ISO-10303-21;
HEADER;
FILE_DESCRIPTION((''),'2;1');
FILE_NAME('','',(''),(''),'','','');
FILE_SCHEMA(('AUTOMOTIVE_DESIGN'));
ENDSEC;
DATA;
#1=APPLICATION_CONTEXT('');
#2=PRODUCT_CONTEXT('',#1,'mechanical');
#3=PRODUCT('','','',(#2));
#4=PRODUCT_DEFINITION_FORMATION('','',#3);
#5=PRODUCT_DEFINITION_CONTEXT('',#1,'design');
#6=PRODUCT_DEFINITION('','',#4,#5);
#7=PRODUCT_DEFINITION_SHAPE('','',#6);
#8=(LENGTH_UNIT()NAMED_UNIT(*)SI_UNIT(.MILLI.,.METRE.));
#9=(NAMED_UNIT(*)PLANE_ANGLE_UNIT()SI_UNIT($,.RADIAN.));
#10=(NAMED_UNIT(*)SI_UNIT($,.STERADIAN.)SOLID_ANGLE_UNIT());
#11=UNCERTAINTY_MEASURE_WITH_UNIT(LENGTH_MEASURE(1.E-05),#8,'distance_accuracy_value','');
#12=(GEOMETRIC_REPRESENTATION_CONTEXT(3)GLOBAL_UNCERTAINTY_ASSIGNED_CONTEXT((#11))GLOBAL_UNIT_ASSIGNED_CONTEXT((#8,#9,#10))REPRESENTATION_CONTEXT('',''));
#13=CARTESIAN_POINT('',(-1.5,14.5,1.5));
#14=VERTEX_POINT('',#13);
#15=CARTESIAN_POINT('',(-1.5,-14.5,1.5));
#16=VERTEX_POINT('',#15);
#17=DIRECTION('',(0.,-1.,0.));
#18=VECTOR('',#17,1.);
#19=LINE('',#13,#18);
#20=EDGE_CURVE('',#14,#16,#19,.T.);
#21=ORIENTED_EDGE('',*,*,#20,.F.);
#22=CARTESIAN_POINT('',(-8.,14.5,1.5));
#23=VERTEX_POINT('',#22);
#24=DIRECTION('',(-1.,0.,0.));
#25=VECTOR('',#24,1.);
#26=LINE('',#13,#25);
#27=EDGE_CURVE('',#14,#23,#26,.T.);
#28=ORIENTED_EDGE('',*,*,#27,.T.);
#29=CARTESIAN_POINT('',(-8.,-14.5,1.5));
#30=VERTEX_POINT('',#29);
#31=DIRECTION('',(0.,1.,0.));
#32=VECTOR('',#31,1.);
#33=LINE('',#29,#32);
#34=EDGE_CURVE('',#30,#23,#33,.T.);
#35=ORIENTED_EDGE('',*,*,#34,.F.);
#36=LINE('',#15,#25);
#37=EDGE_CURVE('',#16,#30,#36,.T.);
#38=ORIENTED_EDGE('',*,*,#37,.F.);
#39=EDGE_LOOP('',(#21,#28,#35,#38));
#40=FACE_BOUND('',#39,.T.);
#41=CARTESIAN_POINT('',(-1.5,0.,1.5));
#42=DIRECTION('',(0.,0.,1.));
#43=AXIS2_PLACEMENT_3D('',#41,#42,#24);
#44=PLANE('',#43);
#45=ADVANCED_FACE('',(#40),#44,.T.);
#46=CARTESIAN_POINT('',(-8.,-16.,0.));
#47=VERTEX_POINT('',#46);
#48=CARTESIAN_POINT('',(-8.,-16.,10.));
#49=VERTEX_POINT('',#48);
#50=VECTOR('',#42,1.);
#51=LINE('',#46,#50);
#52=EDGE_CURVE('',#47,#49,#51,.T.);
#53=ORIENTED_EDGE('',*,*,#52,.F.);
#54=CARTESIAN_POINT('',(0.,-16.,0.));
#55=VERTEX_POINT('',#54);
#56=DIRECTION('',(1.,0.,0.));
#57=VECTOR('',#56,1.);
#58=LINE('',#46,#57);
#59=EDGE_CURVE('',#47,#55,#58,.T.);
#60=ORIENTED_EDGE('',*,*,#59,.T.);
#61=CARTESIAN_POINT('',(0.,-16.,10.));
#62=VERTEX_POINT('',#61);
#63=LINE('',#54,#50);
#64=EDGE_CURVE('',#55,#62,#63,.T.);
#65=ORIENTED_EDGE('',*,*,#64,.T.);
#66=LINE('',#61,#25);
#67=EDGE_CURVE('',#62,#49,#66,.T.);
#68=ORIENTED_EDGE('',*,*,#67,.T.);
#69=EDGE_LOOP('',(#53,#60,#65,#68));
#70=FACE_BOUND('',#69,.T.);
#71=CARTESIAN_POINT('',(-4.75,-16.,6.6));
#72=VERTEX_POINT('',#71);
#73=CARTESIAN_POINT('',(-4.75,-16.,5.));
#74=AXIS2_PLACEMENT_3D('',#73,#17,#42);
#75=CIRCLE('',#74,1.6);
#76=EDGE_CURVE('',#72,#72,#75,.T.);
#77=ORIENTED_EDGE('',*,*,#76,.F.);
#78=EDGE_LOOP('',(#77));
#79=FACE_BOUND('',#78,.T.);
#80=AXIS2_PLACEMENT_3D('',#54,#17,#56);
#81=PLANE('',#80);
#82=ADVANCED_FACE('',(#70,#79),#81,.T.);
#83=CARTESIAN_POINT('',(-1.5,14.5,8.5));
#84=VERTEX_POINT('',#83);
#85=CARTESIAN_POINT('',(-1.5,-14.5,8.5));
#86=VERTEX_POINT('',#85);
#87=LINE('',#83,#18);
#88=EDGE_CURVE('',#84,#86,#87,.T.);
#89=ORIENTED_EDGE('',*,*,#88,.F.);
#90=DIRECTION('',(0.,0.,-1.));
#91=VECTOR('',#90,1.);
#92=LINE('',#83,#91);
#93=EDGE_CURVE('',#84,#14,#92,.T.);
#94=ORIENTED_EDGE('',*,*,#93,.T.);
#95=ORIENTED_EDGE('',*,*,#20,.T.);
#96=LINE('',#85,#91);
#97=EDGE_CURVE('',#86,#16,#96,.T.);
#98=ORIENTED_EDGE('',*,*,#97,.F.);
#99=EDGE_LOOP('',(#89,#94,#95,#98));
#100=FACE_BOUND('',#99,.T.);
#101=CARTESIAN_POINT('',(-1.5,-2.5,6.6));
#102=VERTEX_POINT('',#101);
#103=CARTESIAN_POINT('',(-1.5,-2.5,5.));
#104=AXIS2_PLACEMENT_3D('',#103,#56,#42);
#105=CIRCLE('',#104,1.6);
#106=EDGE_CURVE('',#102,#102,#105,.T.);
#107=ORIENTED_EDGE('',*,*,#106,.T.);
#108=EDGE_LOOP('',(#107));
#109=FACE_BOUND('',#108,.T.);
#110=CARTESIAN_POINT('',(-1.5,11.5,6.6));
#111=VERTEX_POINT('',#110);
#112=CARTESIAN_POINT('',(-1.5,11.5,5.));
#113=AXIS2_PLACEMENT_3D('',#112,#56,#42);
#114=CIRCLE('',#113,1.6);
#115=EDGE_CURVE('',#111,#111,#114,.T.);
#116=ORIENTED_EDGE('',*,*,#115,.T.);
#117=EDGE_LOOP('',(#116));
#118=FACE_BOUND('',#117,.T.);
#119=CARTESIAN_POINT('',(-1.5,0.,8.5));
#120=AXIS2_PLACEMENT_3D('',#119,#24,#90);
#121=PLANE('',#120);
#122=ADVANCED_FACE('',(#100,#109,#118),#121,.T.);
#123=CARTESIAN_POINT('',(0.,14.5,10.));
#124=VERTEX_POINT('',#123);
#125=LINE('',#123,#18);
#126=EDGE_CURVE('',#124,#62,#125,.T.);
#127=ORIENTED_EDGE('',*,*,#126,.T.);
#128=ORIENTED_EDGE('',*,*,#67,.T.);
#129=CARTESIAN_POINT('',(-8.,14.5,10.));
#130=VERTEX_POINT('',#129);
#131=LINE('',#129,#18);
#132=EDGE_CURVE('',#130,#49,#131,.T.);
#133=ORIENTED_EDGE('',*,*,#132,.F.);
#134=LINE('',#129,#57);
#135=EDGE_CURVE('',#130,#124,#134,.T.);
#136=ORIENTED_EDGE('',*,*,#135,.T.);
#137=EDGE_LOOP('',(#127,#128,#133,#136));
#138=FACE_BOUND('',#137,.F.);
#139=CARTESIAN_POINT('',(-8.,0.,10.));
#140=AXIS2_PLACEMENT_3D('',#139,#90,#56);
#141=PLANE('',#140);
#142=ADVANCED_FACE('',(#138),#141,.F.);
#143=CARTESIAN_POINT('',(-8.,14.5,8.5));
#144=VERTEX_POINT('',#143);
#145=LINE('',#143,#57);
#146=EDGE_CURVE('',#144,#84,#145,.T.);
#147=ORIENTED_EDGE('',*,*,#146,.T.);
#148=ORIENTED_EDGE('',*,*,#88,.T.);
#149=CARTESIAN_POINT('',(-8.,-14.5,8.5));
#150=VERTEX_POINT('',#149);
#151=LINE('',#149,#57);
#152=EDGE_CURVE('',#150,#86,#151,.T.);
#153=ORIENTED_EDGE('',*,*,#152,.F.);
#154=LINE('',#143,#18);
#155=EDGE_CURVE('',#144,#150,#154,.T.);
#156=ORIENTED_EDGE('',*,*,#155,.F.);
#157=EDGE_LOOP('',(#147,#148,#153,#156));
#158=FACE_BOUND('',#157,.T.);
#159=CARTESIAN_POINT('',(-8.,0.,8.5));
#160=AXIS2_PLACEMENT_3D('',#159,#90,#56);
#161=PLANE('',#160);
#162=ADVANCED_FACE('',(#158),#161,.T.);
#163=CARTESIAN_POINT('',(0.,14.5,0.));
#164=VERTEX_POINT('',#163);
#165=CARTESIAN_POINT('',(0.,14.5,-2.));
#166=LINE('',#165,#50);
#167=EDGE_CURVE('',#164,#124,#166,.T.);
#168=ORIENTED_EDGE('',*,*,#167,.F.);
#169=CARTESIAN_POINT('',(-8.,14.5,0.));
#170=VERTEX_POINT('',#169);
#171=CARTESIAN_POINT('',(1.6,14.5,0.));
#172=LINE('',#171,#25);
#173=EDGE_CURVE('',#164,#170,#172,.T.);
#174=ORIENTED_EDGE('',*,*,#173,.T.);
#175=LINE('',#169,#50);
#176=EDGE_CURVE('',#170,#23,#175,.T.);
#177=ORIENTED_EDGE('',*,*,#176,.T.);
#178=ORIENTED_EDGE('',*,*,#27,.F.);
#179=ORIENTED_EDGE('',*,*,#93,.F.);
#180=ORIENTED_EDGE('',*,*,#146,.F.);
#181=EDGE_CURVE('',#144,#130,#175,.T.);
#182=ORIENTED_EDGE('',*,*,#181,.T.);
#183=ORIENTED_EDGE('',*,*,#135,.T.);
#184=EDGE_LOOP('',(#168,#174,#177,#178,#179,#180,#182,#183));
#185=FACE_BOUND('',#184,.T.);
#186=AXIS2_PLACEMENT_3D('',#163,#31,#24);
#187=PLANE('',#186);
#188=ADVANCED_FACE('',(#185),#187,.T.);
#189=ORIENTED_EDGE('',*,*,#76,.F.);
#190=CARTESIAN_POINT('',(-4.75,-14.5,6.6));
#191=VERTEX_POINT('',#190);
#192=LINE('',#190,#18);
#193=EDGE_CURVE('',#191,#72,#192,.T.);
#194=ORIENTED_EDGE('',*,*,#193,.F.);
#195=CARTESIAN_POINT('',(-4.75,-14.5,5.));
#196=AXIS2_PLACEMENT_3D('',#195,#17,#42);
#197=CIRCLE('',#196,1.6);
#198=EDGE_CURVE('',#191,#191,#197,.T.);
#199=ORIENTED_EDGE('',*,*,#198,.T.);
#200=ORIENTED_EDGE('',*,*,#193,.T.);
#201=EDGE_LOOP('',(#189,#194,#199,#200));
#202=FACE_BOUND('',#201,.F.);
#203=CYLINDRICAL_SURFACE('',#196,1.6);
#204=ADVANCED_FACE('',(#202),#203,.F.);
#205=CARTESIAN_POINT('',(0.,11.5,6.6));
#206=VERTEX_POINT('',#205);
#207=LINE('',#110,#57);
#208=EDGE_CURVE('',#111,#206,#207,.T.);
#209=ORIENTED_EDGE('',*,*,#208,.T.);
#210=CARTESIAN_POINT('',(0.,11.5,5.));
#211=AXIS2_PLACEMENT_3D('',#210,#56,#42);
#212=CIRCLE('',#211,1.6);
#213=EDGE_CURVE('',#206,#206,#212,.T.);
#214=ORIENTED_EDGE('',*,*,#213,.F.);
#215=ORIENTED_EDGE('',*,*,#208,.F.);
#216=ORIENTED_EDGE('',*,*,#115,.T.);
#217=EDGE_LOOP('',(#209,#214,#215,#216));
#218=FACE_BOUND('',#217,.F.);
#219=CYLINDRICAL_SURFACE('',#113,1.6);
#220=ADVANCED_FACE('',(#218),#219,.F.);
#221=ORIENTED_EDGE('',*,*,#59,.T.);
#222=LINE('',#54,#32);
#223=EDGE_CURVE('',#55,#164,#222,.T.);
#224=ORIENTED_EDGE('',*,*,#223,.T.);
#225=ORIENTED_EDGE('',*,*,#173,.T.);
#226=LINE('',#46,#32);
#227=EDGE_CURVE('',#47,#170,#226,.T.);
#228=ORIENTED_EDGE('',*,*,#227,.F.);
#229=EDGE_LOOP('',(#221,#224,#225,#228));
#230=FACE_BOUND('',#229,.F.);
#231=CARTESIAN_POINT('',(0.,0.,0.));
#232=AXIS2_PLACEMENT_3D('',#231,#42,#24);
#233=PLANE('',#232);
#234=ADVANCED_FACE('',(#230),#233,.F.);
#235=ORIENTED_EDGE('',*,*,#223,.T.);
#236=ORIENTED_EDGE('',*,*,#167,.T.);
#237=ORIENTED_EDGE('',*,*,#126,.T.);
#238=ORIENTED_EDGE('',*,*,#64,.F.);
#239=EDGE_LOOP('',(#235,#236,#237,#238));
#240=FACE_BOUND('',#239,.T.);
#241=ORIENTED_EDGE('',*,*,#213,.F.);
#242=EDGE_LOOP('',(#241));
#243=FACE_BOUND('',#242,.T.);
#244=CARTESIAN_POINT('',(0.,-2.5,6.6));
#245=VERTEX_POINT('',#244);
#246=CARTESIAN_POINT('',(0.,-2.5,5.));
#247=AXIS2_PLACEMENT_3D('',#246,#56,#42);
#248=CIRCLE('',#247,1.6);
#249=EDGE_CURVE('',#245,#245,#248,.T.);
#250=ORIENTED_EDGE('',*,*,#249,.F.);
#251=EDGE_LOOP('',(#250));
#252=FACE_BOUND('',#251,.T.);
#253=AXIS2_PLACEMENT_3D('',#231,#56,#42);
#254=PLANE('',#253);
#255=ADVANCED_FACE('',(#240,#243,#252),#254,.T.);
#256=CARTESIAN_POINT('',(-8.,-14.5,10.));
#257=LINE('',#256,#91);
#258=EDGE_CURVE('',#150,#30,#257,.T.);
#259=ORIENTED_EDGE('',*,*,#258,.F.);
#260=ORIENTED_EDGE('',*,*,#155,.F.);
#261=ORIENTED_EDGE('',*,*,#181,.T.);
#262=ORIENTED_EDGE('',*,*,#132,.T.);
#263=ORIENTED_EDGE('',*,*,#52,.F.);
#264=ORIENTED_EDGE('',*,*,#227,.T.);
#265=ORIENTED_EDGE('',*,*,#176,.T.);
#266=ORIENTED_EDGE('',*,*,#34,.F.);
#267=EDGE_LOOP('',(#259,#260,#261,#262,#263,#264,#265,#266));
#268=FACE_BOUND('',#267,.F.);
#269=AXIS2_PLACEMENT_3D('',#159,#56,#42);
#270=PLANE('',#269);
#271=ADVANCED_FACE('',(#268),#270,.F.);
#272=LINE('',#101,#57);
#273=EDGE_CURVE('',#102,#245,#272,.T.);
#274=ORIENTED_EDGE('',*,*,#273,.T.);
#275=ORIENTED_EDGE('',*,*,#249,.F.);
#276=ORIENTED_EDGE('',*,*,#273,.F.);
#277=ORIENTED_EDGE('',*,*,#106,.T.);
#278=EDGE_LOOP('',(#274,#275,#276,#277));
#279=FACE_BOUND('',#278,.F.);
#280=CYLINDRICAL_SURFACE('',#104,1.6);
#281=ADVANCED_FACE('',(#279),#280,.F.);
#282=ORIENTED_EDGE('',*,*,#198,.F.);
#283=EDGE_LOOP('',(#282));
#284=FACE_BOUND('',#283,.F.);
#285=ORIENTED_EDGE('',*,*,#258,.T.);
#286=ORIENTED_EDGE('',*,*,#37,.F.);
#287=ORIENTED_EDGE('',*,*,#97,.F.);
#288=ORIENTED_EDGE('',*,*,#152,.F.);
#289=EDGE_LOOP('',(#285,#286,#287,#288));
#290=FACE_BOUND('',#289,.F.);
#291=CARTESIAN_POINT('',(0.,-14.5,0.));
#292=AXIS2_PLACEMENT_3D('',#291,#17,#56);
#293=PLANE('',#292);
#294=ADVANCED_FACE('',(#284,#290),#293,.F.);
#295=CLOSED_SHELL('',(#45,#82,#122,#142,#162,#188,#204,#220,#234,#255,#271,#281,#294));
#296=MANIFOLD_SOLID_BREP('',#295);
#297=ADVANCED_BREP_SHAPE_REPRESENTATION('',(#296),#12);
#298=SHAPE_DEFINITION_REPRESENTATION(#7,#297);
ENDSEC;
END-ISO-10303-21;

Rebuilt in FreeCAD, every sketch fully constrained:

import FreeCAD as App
import Part
import Sketcher
from FreeCAD import Vector
Q = App.Units.Quantity

doc = App.newDocument("Part")
body = doc.addObject("PartDesign::Body", "Body")

sketch1 = body.newObject("Sketcher::SketchObject", "Sketch")
sketch1.AttachmentSupport = (doc.getObject("XZ_Plane"), [""])
sketch1.MapMode = "FlatFace"
sketch1.addGeometry([
    Part.LineSegment(Vector(0, 10, 0), Vector(0, 0, 0)),
    Part.LineSegment(Vector(0, 0, 0), Vector(-8, 0, 0)),
    Part.LineSegment(Vector(-8, 0, 0), Vector(-8, 1.5, 0)),
    Part.LineSegment(Vector(-8, 1.5, 0), Vector(-1.5, 1.5, 0)),
    Part.LineSegment(Vector(-1.5, 1.5, 0), Vector(-1.5, 8.5, 0)),
    Part.LineSegment(Vector(-1.5, 8.5, 0), Vector(-8, 8.5, 0)),
    Part.LineSegment(Vector(-8, 8.5, 0), Vector(-8, 10, 0)),
    Part.LineSegment(Vector(-8, 10, 0), Vector(0, 10, 0)),
], False)
sketch1.addConstraint([
    Sketcher.Constraint("Coincident", 0, 2, 1, 1),
    Sketcher.Constraint("Coincident", 1, 2, 2, 1),
    Sketcher.Constraint("Coincident", 2, 2, 3, 1),
    Sketcher.Constraint("Coincident", 3, 2, 4, 1),
    Sketcher.Constraint("Coincident", 4, 2, 5, 1),
    Sketcher.Constraint("Coincident", 5, 2, 6, 1),
    Sketcher.Constraint("Coincident", 6, 2, 7, 1),
    Sketcher.Constraint("Coincident", 7, 2, 0, 1),
    Sketcher.Constraint("Vertical", 0),
    Sketcher.Constraint("Horizontal", 1),
    Sketcher.Constraint("Vertical", 2),
    Sketcher.Constraint("Horizontal", 3),
    Sketcher.Constraint("Vertical", 4),
    Sketcher.Constraint("Horizontal", 5),
    Sketcher.Constraint("Vertical", 6),
    Sketcher.Constraint("Horizontal", 7),
    Sketcher.Constraint("Coincident", 0, 2, -1, 1),
    Sketcher.Constraint("Vertical", 2, 2, 5, 2),
    Sketcher.Constraint("Equal", 2, 6),
    Sketcher.Constraint("DistanceX", 1, 2, 1, 1, Q("8 mm")),
    Sketcher.Constraint("DistanceY", 0, 2, 0, 1, Q("10 mm")),
    Sketcher.Constraint("DistanceY", 4, 1, 4, 2, Q("7 mm")),
    Sketcher.Constraint("DistanceX", 3, 1, 3, 2, Q("6.5 mm")),
])
pad1 = body.newObject("PartDesign::Pad", "Pad")
pad1.Profile = sketch1
pad1.Length = 29
pad1.Midplane = True

sketch2 = body.newObject("Sketcher::SketchObject", "Sketch001")
sketch2.AttachmentSupport = (doc.getObject("XZ_Plane"), [""])
sketch2.MapMode = "FlatFace"
sketch2.AttachmentOffset = App.Placement(Vector(0, 0, 14.5), App.Rotation())
sketch2.addGeometry([
    Part.LineSegment(Vector(-8, 10, 0), Vector(-8, 0, 0)),
    Part.LineSegment(Vector(-8, 0, 0), Vector(0, 0, 0)),
    Part.LineSegment(Vector(0, 0, 0), Vector(0, 10, 0)),
    Part.LineSegment(Vector(0, 10, 0), Vector(-8, 10, 0)),
], False)
sketch2.addConstraint([
    Sketcher.Constraint("Coincident", 0, 2, 1, 1),
    Sketcher.Constraint("Coincident", 1, 2, 2, 1),
    Sketcher.Constraint("Coincident", 2, 2, 3, 1),
    Sketcher.Constraint("Coincident", 3, 2, 0, 1),
    Sketcher.Constraint("Vertical", 0),
    Sketcher.Constraint("Horizontal", 1),
    Sketcher.Constraint("Vertical", 2),
    Sketcher.Constraint("Horizontal", 3),
    Sketcher.Constraint("Coincident", 1, 2, -1, 1),
    Sketcher.Constraint("DistanceX", 1, 1, 1, 2, Q("8 mm")),
    Sketcher.Constraint("DistanceY", 0, 2, 0, 1, Q("10 mm")),
])
pad2 = body.newObject("PartDesign::Pad", "Pad001")
pad2.Profile = sketch2
pad2.Length = 1.5

sketch3 = body.newObject("Sketcher::SketchObject", "Sketch002")
sketch3.AttachmentSupport = (doc.getObject("XZ_Plane"), [""])
sketch3.MapMode = "FlatFace"
sketch3.AttachmentOffset = App.Placement(Vector(0, 0, 14.5), App.Rotation())
sketch3.addGeometry(Part.Circle(Vector(-4.8, 5, 0), Vector(0, 0, 1), 1.6), False)
sketch3.addConstraint([
    Sketcher.Constraint("Diameter", 0, Q("3.2 mm")),
    Sketcher.Constraint("DistanceY", -1, 1, 0, 3, Q("5 mm")),
    Sketcher.Constraint("DistanceX", 0, 3, -1, 1, Q("4.75 mm")),
])
doc.recompute()
hole = body.newObject("PartDesign::Hole", "Hole")
hole.Profile = sketch3
hole.ThreadType = "None"
hole.Diameter = 3.2
hole.DepthType = "ThroughAll"
hole.Reversed = True

sketch4 = body.newObject("Sketcher::SketchObject", "Sketch003")
sketch4.AttachmentSupport = (doc.getObject("YZ_Plane"), [""])
sketch4.MapMode = "FlatFace"
sketch4.AttachmentOffset = App.Placement(Vector(0, 0, -1.5), App.Rotation())
sketch4.addGeometry([
    Part.Circle(Vector(11.5, 5, 0), Vector(0, 0, 1), 1.6),
    Part.Circle(Vector(-2.5, 5, 0), Vector(0, 0, 1), 1.6),
], False)
sketch4.addConstraint([
    Sketcher.Constraint("Equal", 0, 1),
    Sketcher.Constraint("Horizontal", 0, 3, 1, 3),
    Sketcher.Constraint("Diameter", 0, Q("3.2 mm")),
    Sketcher.Constraint("DistanceY", -1, 1, 0, 3, Q("5 mm")),
    Sketcher.Constraint("DistanceX", 1, 3, 0, 3, Q("14 mm")),
    Sketcher.Constraint("DistanceX", -1, 1, 0, 3, Q("11.5 mm")),
])
doc.recompute()
hole2 = body.newObject("PartDesign::Hole", "Hole001")
hole2.Profile = sketch4
hole2.ThreadType = "None"
hole2.Diameter = 3.2
hole2.DepthType = "ThroughAll"
hole2.Reversed = True

doc.recompute()
